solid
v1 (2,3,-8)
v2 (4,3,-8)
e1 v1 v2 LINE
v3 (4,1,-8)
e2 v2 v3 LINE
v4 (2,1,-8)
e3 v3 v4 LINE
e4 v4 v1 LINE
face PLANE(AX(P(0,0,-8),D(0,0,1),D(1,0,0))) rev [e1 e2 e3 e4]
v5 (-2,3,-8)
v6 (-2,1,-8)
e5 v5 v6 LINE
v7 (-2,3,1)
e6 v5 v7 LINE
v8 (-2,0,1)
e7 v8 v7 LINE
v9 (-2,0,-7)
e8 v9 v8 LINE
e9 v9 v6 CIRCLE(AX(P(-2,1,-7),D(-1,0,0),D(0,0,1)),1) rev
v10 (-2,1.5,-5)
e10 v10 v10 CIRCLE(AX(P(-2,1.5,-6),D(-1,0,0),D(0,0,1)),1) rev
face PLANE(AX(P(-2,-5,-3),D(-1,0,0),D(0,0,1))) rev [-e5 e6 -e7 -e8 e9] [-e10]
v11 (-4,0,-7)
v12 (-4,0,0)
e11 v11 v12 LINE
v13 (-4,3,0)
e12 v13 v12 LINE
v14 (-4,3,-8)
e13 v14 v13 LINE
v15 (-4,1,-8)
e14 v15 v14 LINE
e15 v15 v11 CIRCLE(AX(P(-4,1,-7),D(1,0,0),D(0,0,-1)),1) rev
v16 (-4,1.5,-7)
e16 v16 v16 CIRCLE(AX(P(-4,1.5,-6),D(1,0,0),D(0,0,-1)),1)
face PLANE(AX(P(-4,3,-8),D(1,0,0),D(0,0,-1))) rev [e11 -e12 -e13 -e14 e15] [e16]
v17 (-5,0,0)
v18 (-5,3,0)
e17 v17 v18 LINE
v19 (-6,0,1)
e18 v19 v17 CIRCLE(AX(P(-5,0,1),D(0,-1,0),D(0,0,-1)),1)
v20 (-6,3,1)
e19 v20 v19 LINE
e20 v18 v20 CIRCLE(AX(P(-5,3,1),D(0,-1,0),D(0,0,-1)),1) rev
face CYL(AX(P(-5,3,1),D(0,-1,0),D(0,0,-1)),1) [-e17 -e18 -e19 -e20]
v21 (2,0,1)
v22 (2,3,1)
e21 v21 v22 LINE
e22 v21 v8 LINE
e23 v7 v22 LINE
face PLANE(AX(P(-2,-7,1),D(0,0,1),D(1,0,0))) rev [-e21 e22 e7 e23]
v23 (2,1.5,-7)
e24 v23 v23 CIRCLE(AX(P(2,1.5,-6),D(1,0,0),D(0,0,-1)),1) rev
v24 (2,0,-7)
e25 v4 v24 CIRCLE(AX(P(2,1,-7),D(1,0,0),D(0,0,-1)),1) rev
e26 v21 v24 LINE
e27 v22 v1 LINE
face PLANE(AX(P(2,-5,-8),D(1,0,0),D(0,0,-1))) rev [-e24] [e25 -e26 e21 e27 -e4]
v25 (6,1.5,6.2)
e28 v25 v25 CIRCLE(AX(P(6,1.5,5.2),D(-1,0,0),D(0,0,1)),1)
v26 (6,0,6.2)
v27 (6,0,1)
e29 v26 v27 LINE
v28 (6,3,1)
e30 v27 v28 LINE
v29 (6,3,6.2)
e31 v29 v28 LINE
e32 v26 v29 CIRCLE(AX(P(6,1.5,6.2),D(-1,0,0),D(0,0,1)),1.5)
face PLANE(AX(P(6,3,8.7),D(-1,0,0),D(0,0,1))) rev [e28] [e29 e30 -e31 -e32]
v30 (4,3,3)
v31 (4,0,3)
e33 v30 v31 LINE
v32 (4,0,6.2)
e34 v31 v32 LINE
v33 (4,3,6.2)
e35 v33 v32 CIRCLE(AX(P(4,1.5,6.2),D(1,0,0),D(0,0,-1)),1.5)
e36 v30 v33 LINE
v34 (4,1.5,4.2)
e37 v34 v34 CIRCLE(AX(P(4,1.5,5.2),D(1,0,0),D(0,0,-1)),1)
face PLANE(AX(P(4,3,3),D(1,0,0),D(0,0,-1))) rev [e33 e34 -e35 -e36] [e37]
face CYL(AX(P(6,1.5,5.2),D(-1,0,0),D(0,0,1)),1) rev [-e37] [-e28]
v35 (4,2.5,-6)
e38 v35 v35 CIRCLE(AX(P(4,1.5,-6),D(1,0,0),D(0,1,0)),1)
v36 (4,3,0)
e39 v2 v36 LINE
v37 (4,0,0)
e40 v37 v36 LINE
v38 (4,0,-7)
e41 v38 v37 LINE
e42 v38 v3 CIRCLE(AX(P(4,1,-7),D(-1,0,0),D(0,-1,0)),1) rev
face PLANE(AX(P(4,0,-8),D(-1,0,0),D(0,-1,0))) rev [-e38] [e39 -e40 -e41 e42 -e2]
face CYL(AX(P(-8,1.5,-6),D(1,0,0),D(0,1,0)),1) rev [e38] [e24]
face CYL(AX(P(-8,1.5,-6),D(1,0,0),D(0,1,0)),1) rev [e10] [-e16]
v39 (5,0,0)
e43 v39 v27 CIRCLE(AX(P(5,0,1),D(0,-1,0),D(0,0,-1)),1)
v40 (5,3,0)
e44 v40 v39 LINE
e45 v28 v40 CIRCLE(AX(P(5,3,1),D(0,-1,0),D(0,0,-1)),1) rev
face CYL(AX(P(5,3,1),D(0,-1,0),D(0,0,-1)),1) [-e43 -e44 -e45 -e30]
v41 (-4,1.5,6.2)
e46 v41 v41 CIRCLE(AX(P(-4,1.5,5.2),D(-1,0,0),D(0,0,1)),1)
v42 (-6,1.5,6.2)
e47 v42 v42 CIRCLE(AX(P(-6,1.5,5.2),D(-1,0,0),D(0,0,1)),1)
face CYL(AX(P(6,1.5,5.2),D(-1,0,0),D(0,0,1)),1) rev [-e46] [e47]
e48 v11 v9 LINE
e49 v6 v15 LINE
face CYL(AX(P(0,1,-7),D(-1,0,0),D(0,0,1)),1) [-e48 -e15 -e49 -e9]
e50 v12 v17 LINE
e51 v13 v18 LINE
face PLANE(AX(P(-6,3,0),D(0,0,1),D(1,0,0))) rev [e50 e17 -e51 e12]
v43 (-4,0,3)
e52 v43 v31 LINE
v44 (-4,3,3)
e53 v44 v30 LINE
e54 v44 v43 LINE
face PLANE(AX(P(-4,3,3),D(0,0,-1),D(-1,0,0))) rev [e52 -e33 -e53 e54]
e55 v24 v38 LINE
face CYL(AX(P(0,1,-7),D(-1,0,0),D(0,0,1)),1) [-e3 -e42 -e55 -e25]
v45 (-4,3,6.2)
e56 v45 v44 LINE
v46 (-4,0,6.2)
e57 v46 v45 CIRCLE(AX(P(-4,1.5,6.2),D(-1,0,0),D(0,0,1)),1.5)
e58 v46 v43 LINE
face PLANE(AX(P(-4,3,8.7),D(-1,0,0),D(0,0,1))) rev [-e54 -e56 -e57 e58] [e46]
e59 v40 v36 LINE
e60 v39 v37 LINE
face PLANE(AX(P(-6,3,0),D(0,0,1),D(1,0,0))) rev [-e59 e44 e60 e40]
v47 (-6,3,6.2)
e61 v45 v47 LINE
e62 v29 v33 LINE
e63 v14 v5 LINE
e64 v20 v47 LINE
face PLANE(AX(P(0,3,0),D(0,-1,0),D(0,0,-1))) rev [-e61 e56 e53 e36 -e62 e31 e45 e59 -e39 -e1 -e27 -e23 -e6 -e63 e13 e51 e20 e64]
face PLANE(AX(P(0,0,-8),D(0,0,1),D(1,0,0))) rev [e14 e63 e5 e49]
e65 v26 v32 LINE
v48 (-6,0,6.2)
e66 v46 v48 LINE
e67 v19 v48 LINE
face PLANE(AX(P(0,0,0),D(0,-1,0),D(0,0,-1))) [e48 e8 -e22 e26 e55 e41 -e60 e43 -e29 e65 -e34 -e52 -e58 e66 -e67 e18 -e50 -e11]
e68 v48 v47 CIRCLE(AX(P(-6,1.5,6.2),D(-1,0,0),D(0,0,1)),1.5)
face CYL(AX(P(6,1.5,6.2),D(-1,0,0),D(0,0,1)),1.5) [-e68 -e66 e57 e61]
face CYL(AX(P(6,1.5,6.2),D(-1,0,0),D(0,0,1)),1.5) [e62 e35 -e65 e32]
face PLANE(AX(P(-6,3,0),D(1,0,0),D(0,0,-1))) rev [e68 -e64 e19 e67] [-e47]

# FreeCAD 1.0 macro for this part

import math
import FreeCAD as App
import Part
import Sketcher
from FreeCAD import Vector
Q = App.Units.Quantity


def edges_at(feature, points):
    """Names of the edges that pass closest to the given points."""
    edges = feature.Shape.Edges
    near = lambda p: min(range(len(edges)), key=lambda i: edges[i].distToShape(Part.Vertex(*p))[0])
    return sorted({f"Edge{near(p) + 1}" for p in points})

doc = App.newDocument("Part")
body = doc.addObject("PartDesign::Body", "Body")

sketch1 = body.newObject("Sketcher::SketchObject", "Sketch")
sketch1.AttachmentSupport = (doc.getObject("XZ_Plane"), [""])
sketch1.MapMode = "FlatFace"
sketch1.addGeometry([
    Part.LineSegment(Vector(6, 0, 0), Vector(-6, 0, 0)),
    Part.LineSegment(Vector(-6, 0, 0), Vector(-6, 8.7, 0)),
    Part.LineSegment(Vector(-6, 8.7, 0), Vector(-4, 8.7, 0)),
    Part.LineSegment(Vector(-4, 8.7, 0), Vector(-4, 3, 0)),
    Part.LineSegment(Vector(-4, 3, 0), Vector(4, 3, 0)),
    Part.LineSegment(Vector(4, 3, 0), Vector(4, 8.7, 0)),
    Part.LineSegment(Vector(4, 8.7, 0), Vector(6, 8.7, 0)),
    Part.LineSegment(Vector(6, 8.7, 0), Vector(6, 0, 0)),
], False)
sketch1.addConstraint([
    Sketcher.Constraint("Coincident", 0, 2, 1, 1),
    Sketcher.Constraint("Coincident", 1, 2, 2, 1),
    Sketcher.Constraint("Coincident", 2, 2, 3, 1),
    Sketcher.Constraint("Coincident", 3, 2, 4, 1),
    Sketcher.Constraint("Coincident", 4, 2, 5, 1),
    Sketcher.Constraint("Coincident", 5, 2, 6, 1),
    Sketcher.Constraint("Coincident", 6, 2, 7, 1),
    Sketcher.Constraint("Coincident", 7, 2, 0, 1),
    Sketcher.Constraint("Horizontal", 0),
    Sketcher.Constraint("Vertical", 1),
    Sketcher.Constraint("Horizontal", 2),
    Sketcher.Constraint("Vertical", 3),
    Sketcher.Constraint("Horizontal", 4),
    Sketcher.Constraint("Vertical", 5),
    Sketcher.Constraint("Horizontal", 6),
    Sketcher.Constraint("Vertical", 7),
    Sketcher.Constraint("Symmetric", 0, 2, 7, 2, -1, 1),
    Sketcher.Constraint("Symmetric", 2, 2, 5, 2, -2),
    Sketcher.Constraint("DistanceX", 0, 2, 0, 1, Q("12 mm")),
    Sketcher.Constraint("DistanceX", 2, 1, 2, 2, Q("2 mm")),
    Sketcher.Constraint("DistanceY", 1, 1, 1, 2, Q("8.7 mm")),
    Sketcher.Constraint("DistanceY", 3, 2, 3, 1, Q("5.7 mm")),
])
pad1 = body.newObject("PartDesign::Pad", "Pad")
pad1.Profile = sketch1
pad1.Length = 3
pad1.Reversed = True

sketch2 = body.newObject("Sketcher::SketchObject", "Sketch001")
sketch2.AttachmentSupport = (doc.getObject("YZ_Plane"), [""])
sketch2.MapMode = "FlatFace"
sketch2.AttachmentOffset = App.Placement(Vector(0, 0, -6), App.Rotation())
sketch2.addGeometry([
    Part.LineSegment(Vector(5.5, -2.5, 0), Vector(-2.5, -2.5, 0)),
    Part.LineSegment(Vector(-2.5, -2.5, 0), Vector(-2.5, 11.2, 0)),
    Part.LineSegment(Vector(-2.5, 11.2, 0), Vector(5.5, 11.2, 0)),
    Part.LineSegment(Vector(5.5, 11.2, 0), Vector(5.5, -2.5, 0)),
    Part.LineSegment(Vector(3, 0, 0), Vector(3, 6.2, 0)),
    Part.ArcOfCircle(Part.Circle(Vector(1.5, 6.2, 0), Vector(0, 0, 1), 1.5), math.radians(0), math.radians(180)),
    Part.LineSegment(Vector(0, 6.2, 0), Vector(0, 0, 0)),
    Part.LineSegment(Vector(0, 0, 0), Vector(3, 0, 0)),
], False)
sketch2.addConstraint([
    Sketcher.Constraint("Coincident", 0, 2, 1, 1),
    Sketcher.Constraint("Coincident", 1, 2, 2, 1),
    Sketcher.Constraint("Coincident", 2, 2, 3, 1),
    Sketcher.Constraint("Coincident", 3, 2, 0, 1),
    Sketcher.Constraint("Tangent", 4, 2, 5, 1),
    Sketcher.Constraint("Tangent", 5, 2, 6, 1),
    Sketcher.Constraint("Coincident", 6, 2, 7, 1),
    Sketcher.Constraint("Coincident", 7, 2, 4, 1),
    Sketcher.Constraint("Horizontal", 0),
    Sketcher.Constraint("Vertical", 1),
    Sketcher.Constraint("Horizontal", 2),
    Sketcher.Constraint("Vertical", 3),
    Sketcher.Constraint("Vertical", 4),
    Sketcher.Constraint("Vertical", 6),
    Sketcher.Constraint("Horizontal", 7),
    Sketcher.Constraint("Coincident", 6, 2, -1, 1),
    Sketcher.Constraint("Radius", 5, Q("1.5 mm")),
    Sketcher.Constraint("DistanceY", 4, 1, 4, 2, Q("6.2 mm")),
    Sketcher.Constraint("DistanceX", 0, 2, 0, 1, Q("8.024 mm")),
    Sketcher.Constraint("DistanceY", 1, 1, 1, 2, Q("13.724 mm")),
    Sketcher.Constraint("DistanceX", 0, 2, -1, 1, Q("2.512 mm")),
    Sketcher.Constraint("DistanceY", 0, 2, -1, 1, Q("2.512 mm")),
])
pocket1 = body.newObject("PartDesign::Pocket", "Pocket")
pocket1.Profile = sketch2
pocket1.Length = 12
pocket1.Reversed = True

sketch3 = body.newObject("Sketcher::SketchObject", "Sketch002")
sketch3.AttachmentSupport = (doc.getObject("YZ_Plane"), [""])
sketch3.MapMode = "FlatFace"
sketch3.AttachmentOffset = App.Placement(Vector(0, 0, -6), App.Rotation())
sketch3.addGeometry(Part.Circle(Vector(1.5, 5.2, 0), Vector(0, 0, 1), 1), False)
sketch3.addConstraint([
    Sketcher.Constraint("Diameter", 0, Q("2 mm")),
    Sketcher.Constraint("DistanceX", -1, 1, 0, 3, Q("1.5 mm")),
    Sketcher.Constraint("DistanceY", -1, 1, 0, 3, Q("5.2 mm")),
])
pocket2 = body.newObject("PartDesign::Pocket", "Pocket001")
pocket2.Profile = sketch3
pocket2.Length = 12
pocket2.Reversed = True
doc.recompute()

fillet = body.newObject("PartDesign::Fillet", "Fillet")
fillet.Base = (pocket2, edges_at(pocket2, [(-6, 1.5, 0), (6, 1.5, 0)]))
fillet.Radius = 1

sketch4 = body.newObject("Sketcher::SketchObject", "Sketch003")
sketch4.AttachmentSupport = (doc.getObject("XY_Plane"), [""])
sketch4.MapMode = "FlatFace"
sketch4.addGeometry(Part.Circle(Vector(0, 1.5, 0), Vector(0, 0, 1), 0.9), False)
sketch4.addConstraint([
    Sketcher.Constraint("PointOnObject", 0, 3, -2),
    Sketcher.Constraint("Diameter", 0, Q("1.9 mm")),
    Sketcher.Constraint("DistanceY", -1, 1, 0, 3, Q("1.5 mm")),
])
pad2 = body.newObject("PartDesign::Pad", "Pad001")
pad2.Profile = sketch4
pad2.Length = 2
pad2.Reversed = True

sketch5 = body.newObject("Sketcher::SketchObject", "Sketch004")
sketch5.AttachmentSupport = (doc.getObject("XY_Plane"), [""])
sketch5.MapMode = "FlatFace"
sketch5.AttachmentOffset = App.Placement(Vector(0, 0, -2), App.Rotation())
sketch5.addGeometry([
    Part.LineSegment(Vector(4, 3, 0), Vector(4, 0, 0)),
    Part.LineSegment(Vector(4, 0, 0), Vector(-4, 0, 0)),
    Part.LineSegment(Vector(-4, 0, 0), Vector(-4, 3, 0)),
    Part.LineSegment(Vector(-4, 3, 0), Vector(4, 3, 0)),
], False)
sketch5.addConstraint([
    Sketcher.Constraint("Coincident", 0, 2, 1, 1),
    Sketcher.Constraint("Coincident", 1, 2, 2, 1),
    Sketcher.Constraint("Coincident", 2, 2, 3, 1),
    Sketcher.Constraint("Coincident", 3, 2, 0, 1),
    Sketcher.Constraint("Vertical", 0),
    Sketcher.Constraint("Horizontal", 1),
    Sketcher.Constraint("Vertical", 2),
    Sketcher.Constraint("Horizontal", 3),
    Sketcher.Constraint("Symmetric", 0, 2, 1, 2, -1, 1),
    Sketcher.Constraint("DistanceX", 1, 2, 1, 1, Q("8 mm")),
    Sketcher.Constraint("DistanceY", 0, 2, 0, 1, Q("3 mm")),
])
pad3 = body.newObject("PartDesign::Pad", "Pad002")
pad3.Profile = sketch5
pad3.Length = 6
pad3.Reversed = True

sketch6 = body.newObject("Sketcher::SketchObject", "Sketch005")
sketch6.AttachmentSupport = (doc.getObject("YZ_Plane"), [""])
sketch6.MapMode = "FlatFace"
sketch6.AttachmentOffset = App.Placement(Vector(0, 0, 4), App.Rotation())
sketch6.addGeometry(Part.Circle(Vector(1.5, -6, 0), Vector(0, 0, 1), 1), False)
sketch6.addConstraint([
    Sketcher.Constraint("Diameter", 0, Q("2 mm")),
    Sketcher.Constraint("DistanceY", 0, 3, -1, 1, Q("6 mm")),
    Sketcher.Constraint("DistanceX", -1, 1, 0, 3, Q("1.5 mm")),
])
pocket3 = body.newObject("PartDesign::Pocket", "Pocket002")
pocket3.Profile = sketch6
pocket3.Length = 12

sketch7 = body.newObject("Sketcher::SketchObject", "Sketch006")
sketch7.AttachmentSupport = (doc.getObject("XZ_Plane"), [""])
sketch7.MapMode = "FlatFace"
sketch7.AttachmentOffset = App.Placement(Vector(0, 0, -3), App.Rotation())
sketch7.addGeometry([
    Part.LineSegment(Vector(2, -8, 0), Vector(-2, -10, 0)),
    Part.LineSegment(Vector(-2, -10, 0), Vector(-2, -3, 0)),
    Part.LineSegment(Vector(-2, -3, 0), Vector(2, -3, 0)),
    Part.LineSegment(Vector(2, -3, 0), Vector(2, -8, 0)),
], False)
sketch7.addConstraint([
    Sketcher.Constraint("Coincident", 0, 2, 1, 1),
    Sketcher.Constraint("Coincident", 1, 2, 2, 1),
    Sketcher.Constraint("Coincident", 2, 2, 3, 1),
    Sketcher.Constraint("Coincident", 3, 2, 0, 1),
    Sketcher.Constraint("Vertical", 1),
    Sketcher.Constraint("Horizontal", 2),
    Sketcher.Constraint("Vertical", 3),
    Sketcher.Constraint("DistanceX", 2, 1, 2, 2, Q("4 mm")),
    Sketcher.Constraint("DistanceY", 1, 1, 1, 2, Q("7 mm")),
    Sketcher.Constraint("DistanceY", 3, 2, 3, 1, Q("5 mm")),
    Sketcher.Constraint("DistanceX", 0, 2, -1, 1, Q("2 mm")),
    Sketcher.Constraint("DistanceY", 0, 2, -1, 1, Q("10 mm")),
])
pocket4 = body.newObject("PartDesign::Pocket", "Pocket003")
pocket4.Profile = sketch7
pocket4.Length = 8
pocket4.Reversed = True
doc.recompute()

fillet2 = body.newObject("PartDesign::Fillet", "Fillet001")
fillet2.Base = (pocket4, edges_at(pocket4, [(-3, 0, -8), (3, 0, -8)]))
fillet2.Radius = 1

sketch8 = body.newObject("Sketcher::SketchObject", "Sketch007")
sketch8.AttachmentSupport = (doc.getObject("XY_Plane"), [""])
sketch8.MapMode = "FlatFace"
sketch8.AttachmentOffset = App.Placement(Vector(0, 0, -2), App.Rotation())
sketch8.addGeometry([
    Part.LineSegment(Vector(-4, 3, 0), Vector(-4, 0, 0)),
    Part.LineSegment(Vector(-4, 0, 0), Vector(4, 0, 0)),
    Part.LineSegment(Vector(4, 0, 0), Vector(4, 3, 0)),
    Part.LineSegment(Vector(4, 3, 0), Vector(-4, 3, 0)),
], False)
sketch8.addConstraint([
    Sketcher.Constraint("Coincident", 0, 2, 1, 1),
    Sketcher.Constraint("Coincident", 1, 2, 2, 1),
    Sketcher.Constraint("Coincident", 2, 2, 3, 1),
    Sketcher.Constraint("Coincident", 3, 2, 0, 1),
    Sketcher.Constraint("Vertical", 0),
    Sketcher.Constraint("Horizontal", 1),
    Sketcher.Constraint("Vertical", 2),
    Sketcher.Constraint("Horizontal", 3),
    Sketcher.Constraint("Symmetric", 0, 2, 1, 2, -1, 1),
    Sketcher.Constraint("DistanceX", 1, 1, 1, 2, Q("8 mm")),
    Sketcher.Constraint("DistanceY", 0, 2, 0, 1, Q("3 mm")),
])
pad4 = body.newObject("PartDesign::Pad", "Pad003")
pad4.Profile = sketch8
pad4.Length = 2

sketch9 = body.newObject("Sketcher::SketchObject", "Sketch008")
sketch9.AttachmentSupport = (doc.getObject("XZ_Plane"), [""])
sketch9.MapMode = "FlatFace"
sketch9.AttachmentOffset = App.Placement(Vector(0, 0, -3), App.Rotation())
sketch9.addGeometry([
    Part.LineSegment(Vector(-2, -3, 0), Vector(-2, 1, 0)),
    Part.LineSegment(Vector(-2, 1, 0), Vector(2, 1, 0)),
    Part.LineSegment(Vector(2, 1, 0), Vector(2, -3, 0)),
    Part.LineSegment(Vector(2, -3, 0), Vector(-2, -3, 0)),
], False)
sketch9.addConstraint([
    Sketcher.Constraint("Coincident", 0, 2, 1, 1),
    Sketcher.Constraint("Coincident", 1, 2, 2, 1),
    Sketcher.Constraint("Coincident", 2, 2, 3, 1),
    Sketcher.Constraint("Coincident", 3, 2, 0, 1),
    Sketcher.Constraint("Vertical", 0),
    Sketcher.Constraint("Horizontal", 1),
    Sketcher.Constraint("Vertical", 2),
    Sketcher.Constraint("Horizontal", 3),
    Sketcher.Constraint("Equal", 3, 0),
    Sketcher.Constraint("DistanceX", 1, 1, 1, 2, Q("4 mm")),
    Sketcher.Constraint("DistanceX", 0, 2, -1, 1, Q("2 mm")),
    Sketcher.Constraint("DistanceY", -1, 1, 0, 2, Q("1 mm")),
])
pocket5 = body.newObject("PartDesign::Pocket", "Pocket004")
pocket5.Profile = sketch9
pocket5.Length = 10
pocket5.Reversed = True

doc.recompute()
